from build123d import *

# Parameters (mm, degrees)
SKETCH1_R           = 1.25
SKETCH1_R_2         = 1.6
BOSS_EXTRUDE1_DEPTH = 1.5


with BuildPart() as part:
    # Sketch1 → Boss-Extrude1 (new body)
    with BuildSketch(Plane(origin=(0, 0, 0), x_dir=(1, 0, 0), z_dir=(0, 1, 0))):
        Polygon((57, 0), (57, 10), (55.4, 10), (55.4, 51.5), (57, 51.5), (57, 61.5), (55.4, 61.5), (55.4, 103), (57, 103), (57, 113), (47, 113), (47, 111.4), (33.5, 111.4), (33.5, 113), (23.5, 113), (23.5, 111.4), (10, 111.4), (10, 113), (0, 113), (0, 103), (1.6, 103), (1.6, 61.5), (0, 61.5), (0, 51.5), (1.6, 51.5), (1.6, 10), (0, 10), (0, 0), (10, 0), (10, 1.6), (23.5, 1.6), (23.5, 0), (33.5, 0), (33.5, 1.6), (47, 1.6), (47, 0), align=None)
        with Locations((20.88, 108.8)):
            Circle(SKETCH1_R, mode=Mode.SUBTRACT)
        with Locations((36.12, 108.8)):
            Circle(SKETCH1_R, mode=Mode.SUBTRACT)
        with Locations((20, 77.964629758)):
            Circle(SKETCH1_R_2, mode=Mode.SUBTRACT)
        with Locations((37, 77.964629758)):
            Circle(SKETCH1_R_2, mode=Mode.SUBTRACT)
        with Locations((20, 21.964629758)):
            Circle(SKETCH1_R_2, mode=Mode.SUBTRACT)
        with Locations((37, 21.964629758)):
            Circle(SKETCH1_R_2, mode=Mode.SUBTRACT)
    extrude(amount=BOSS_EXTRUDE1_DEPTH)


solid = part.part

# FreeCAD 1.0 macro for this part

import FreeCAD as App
import Part
import Sketcher

doc = App.newDocument("Part")
body = doc.addObject("PartDesign::Body", "Body")

# Sketch on XZ plane
sketch1 = body.newObject("Sketcher::SketchObject", "Sketch")
sketch1.AttachmentSupport = (doc.getObject("XZ_Plane"), [""])
sketch1.MapMode = "FlatFace"
sketch1.addGeometry([
    Part.LineSegment(App.Vector(57, 0, 0), App.Vector(57, -10, 0)),  # 0
    Part.LineSegment(App.Vector(57, -10, 0), App.Vector(55.4, -10, 0)),  # 1
    Part.LineSegment(App.Vector(55.4, -10, 0), App.Vector(55.4, -51.5, 0)),  # 2
    Part.LineSegment(App.Vector(55.4, -51.5, 0), App.Vector(57, -51.5, 0)),  # 3
    Part.LineSegment(App.Vector(57, -51.5, 0), App.Vector(57, -61.5, 0)),  # 4
    Part.LineSegment(App.Vector(57, -61.5, 0), App.Vector(55.4, -61.5, 0)),  # 5
    Part.LineSegment(App.Vector(55.4, -61.5, 0), App.Vector(55.4, -103, 0)),  # 6
    Part.LineSegment(App.Vector(55.4, -103, 0), App.Vector(57, -103, 0)),  # 7
    Part.LineSegment(App.Vector(57, -103, 0), App.Vector(57, -113, 0)),  # 8
    Part.LineSegment(App.Vector(57, -113, 0), App.Vector(47, -113, 0)),  # 9
    Part.LineSegment(App.Vector(47, -113, 0), App.Vector(47, -111.4, 0)),  # 10
    Part.LineSegment(App.Vector(47, -111.4, 0), App.Vector(33.5, -111.4, 0)),  # 11
    Part.LineSegment(App.Vector(33.5, -111.4, 0), App.Vector(33.5, -113, 0)),  # 12
    Part.LineSegment(App.Vector(33.5, -113, 0), App.Vector(23.5, -113, 0)),  # 13
    Part.LineSegment(App.Vector(23.5, -113, 0), App.Vector(23.5, -111.4, 0)),  # 14
    Part.LineSegment(App.Vector(23.5, -111.4, 0), App.Vector(10, -111.4, 0)),  # 15
    Part.LineSegment(App.Vector(10, -111.4, 0), App.Vector(10, -113, 0)),  # 16
    Part.LineSegment(App.Vector(10, -113, 0), App.Vector(0, -113, 0)),  # 17
    Part.LineSegment(App.Vector(0, -113, 0), App.Vector(0, -103, 0)),  # 18
    Part.LineSegment(App.Vector(0, -103, 0), App.Vector(1.6, -103, 0)),  # 19
    Part.LineSegment(App.Vector(1.6, -103, 0), App.Vector(1.6, -61.5, 0)),  # 20
    Part.LineSegment(App.Vector(1.6, -61.5, 0), App.Vector(0, -61.5, 0)),  # 21
    Part.LineSegment(App.Vector(0, -61.5, 0), App.Vector(0, -51.5, 0)),  # 22
    Part.LineSegment(App.Vector(0, -51.5, 0), App.Vector(1.6, -51.5, 0)),  # 23
    Part.LineSegment(App.Vector(1.6, -51.5, 0), App.Vector(1.6, -10, 0)),  # 24
    Part.LineSegment(App.Vector(1.6, -10, 0), App.Vector(0, -10, 0)),  # 25
    Part.LineSegment(App.Vector(0, -10, 0), App.Vector(0, 0, 0)),  # 26
    Part.LineSegment(App.Vector(0, 0, 0), App.Vector(10, 0, 0)),  # 27
    Part.LineSegment(App.Vector(10, 0, 0), App.Vector(10, -1.6, 0)),  # 28
    Part.LineSegment(App.Vector(10, -1.6, 0), App.Vector(23.5, -1.6, 0)),  # 29
    Part.LineSegment(App.Vector(23.5, -1.6, 0), App.Vector(23.5, 0, 0)),  # 30
    Part.LineSegment(App.Vector(23.5, 0, 0), App.Vector(33.5, 0, 0)),  # 31
    Part.LineSegment(App.Vector(33.5, 0, 0), App.Vector(33.5, -1.6, 0)),  # 32
    Part.LineSegment(App.Vector(33.5, -1.6, 0), App.Vector(47, -1.6, 0)),  # 33
    Part.LineSegment(App.Vector(47, -1.6, 0), App.Vector(47, 0, 0)),  # 34
    Part.LineSegment(App.Vector(47, 0, 0), App.Vector(57, 0, 0)),  # 35
    Part.Circle(App.Vector(20, -22, 0), App.Vector(0, 0, 1), 1.6),  # 36
    Part.Circle(App.Vector(37, -22, 0), App.Vector(0, 0, 1), 1.6),  # 37
    Part.Circle(App.Vector(20, -78, 0), App.Vector(0, 0, 1), 1.6),  # 38
    Part.Circle(App.Vector(20.9, -108.8, 0), App.Vector(0, 0, 1), 1.2),  # 39
    Part.Circle(App.Vector(37, -78, 0), App.Vector(0, 0, 1), 1.6),  # 40
    Part.Circle(App.Vector(36.1, -108.8, 0), App.Vector(0, 0, 1), 1.2),  # 41
], False)
sketch1.addConstraint([
    Sketcher.Constraint("Coincident", 0, 2, 1, 1),
    Sketcher.Constraint("Coincident", 1, 2, 2, 1),
    Sketcher.Constraint("Coincident", 2, 2, 3, 1),
    Sketcher.Constraint("Coincident", 3, 2, 4, 1),
    Sketcher.Constraint("Coincident", 4, 2, 5, 1),
    Sketcher.Constraint("Coincident", 5, 2, 6, 1),
    Sketcher.Constraint("Coincident", 6, 2, 7, 1),
    Sketcher.Constraint("Coincident", 7, 2, 8, 1),
    Sketcher.Constraint("Coincident", 8, 2, 9, 1),
    Sketcher.Constraint("Coincident", 9, 2, 10, 1),
    Sketcher.Constraint("Coincident", 10, 2, 11, 1),
    Sketcher.Constraint("Coincident", 11, 2, 12, 1),
    Sketcher.Constraint("Coincident", 12, 2, 13, 1),
    Sketcher.Constraint("Coincident", 13, 2, 14, 1),
    Sketcher.Constraint("Coincident", 14, 2, 15, 1),
    Sketcher.Constraint("Coincident", 15, 2, 16, 1),
    Sketcher.Constraint("Coincident", 16, 2, 17, 1),
    Sketcher.Constraint("Coincident", 17, 2, 18, 1),
    Sketcher.Constraint("Coincident", 18, 2, 19, 1),
    Sketcher.Constraint("Coincident", 19, 2, 20, 1),
    Sketcher.Constraint("Coincident", 20, 2, 21, 1),
    Sketcher.Constraint("Coincident", 21, 2, 22, 1),
    Sketcher.Constraint("Coincident", 22, 2, 23, 1),
    Sketcher.Constraint("Coincident", 23, 2, 24, 1),
    Sketcher.Constraint("Coincident", 24, 2, 25, 1),
    Sketcher.Constraint("Coincident", 25, 2, 26, 1),
    Sketcher.Constraint("Coincident", 26, 2, 27, 1),
    Sketcher.Constraint("Coincident", 27, 2, 28, 1),
    Sketcher.Constraint("Coincident", 28, 2, 29, 1),
    Sketcher.Constraint("Coincident", 29, 2, 30, 1),
    Sketcher.Constraint("Coincident", 30, 2, 31, 1),
    Sketcher.Constraint("Coincident", 31, 2, 32, 1),
    Sketcher.Constraint("Coincident", 32, 2, 33, 1),
    Sketcher.Constraint("Coincident", 33, 2, 34, 1),
    Sketcher.Constraint("Coincident", 34, 2, 35, 1),
    Sketcher.Constraint("Coincident", 35, 2, 0, 1),
    Sketcher.Constraint("Vertical", 0),
    Sketcher.Constraint("Horizontal", 1),
    Sketcher.Constraint("Vertical", 2),
    Sketcher.Constraint("Horizontal", 3),
    Sketcher.Constraint("Vertical", 4),
    Sketcher.Constraint("Horizontal", 5),
    Sketcher.Constraint("Vertical", 6),
    Sketcher.Constraint("Horizontal", 7),
    Sketcher.Constraint("Vertical", 8),
    Sketcher.Constraint("Horizontal", 9),
    Sketcher.Constraint("Vertical", 10),
    Sketcher.Constraint("Horizontal", 11),
    Sketcher.Constraint("Vertical", 12),
    Sketcher.Constraint("Horizontal", 13),
    Sketcher.Constraint("Vertical", 14),
    Sketcher.Constraint("Horizontal", 15),
    Sketcher.Constraint("Vertical", 16),
    Sketcher.Constraint("Horizontal", 17),
    Sketcher.Constraint("Vertical", 18),
    Sketcher.Constraint("Horizontal", 19),
    Sketcher.Constraint("Vertical", 20),
    Sketcher.Constraint("Horizontal", 21),
    Sketcher.Constraint("Vertical", 22),
    Sketcher.Constraint("Horizontal", 23),
    Sketcher.Constraint("Vertical", 24),
    Sketcher.Constraint("Horizontal", 25),
    Sketcher.Constraint("Vertical", 26),
    Sketcher.Constraint("Horizontal", 27),
    Sketcher.Constraint("Vertical", 28),
    Sketcher.Constraint("Horizontal", 29),
    Sketcher.Constraint("Vertical", 30),
    Sketcher.Constraint("Horizontal", 31),
    Sketcher.Constraint("Vertical", 32),
    Sketcher.Constraint("Horizontal", 33),
    Sketcher.Constraint("Vertical", 34),
    Sketcher.Constraint("Horizontal", 35),
    Sketcher.Constraint("Coincident", 26, 2, -1, 1),
    Sketcher.Constraint("Equal", 36, 37),
    Sketcher.Constraint("Equal", 37, 38),
    Sketcher.Constraint("Equal", 38, 40),
    Sketcher.Constraint("Equal", 39, 41),
    Sketcher.Constraint("PointOnObject", 17, 2, -2),
    Sketcher.Constraint("PointOnObject", 21, 2, -2),
    Sketcher.Constraint("PointOnObject", 30, 2, -1),
    Sketcher.Constraint("PointOnObject", 34, 2, -1),
    Sketcher.Constraint("Horizontal", 36, 3, 37, 3),
    Sketcher.Constraint("Horizontal", 38, 3, 40, 3),
    Sketcher.Constraint("Horizontal", 39, 3, 41, 3),
    Sketcher.Constraint("Horizontal", 9, 2, 12, 2),
    Sketcher.Constraint("Horizontal", 11, 2, 14, 2),
    Sketcher.Constraint("Horizontal", 13, 2, 16, 2),
    Sketcher.Constraint("Horizontal", 7, 2, 18, 2),
    Sketcher.Constraint("Horizontal", 5, 2, 20, 2),
    Sketcher.Constraint("Horizontal", 3, 2, 22, 2),
    Sketcher.Constraint("Horizontal", 1, 2, 24, 2),
    Sketcher.Constraint("Horizontal", 29, 2, 32, 2),
    Sketcher.Constraint("Vertical", 36, 3, 38, 3),
    Sketcher.Constraint("Vertical", 37, 3, 40, 3),
    Sketcher.Constraint("Vertical", 0, 2, 3, 2),
    Sketcher.Constraint("Vertical", 2, 2, 5, 2),
    Sketcher.Constraint("Vertical", 4, 2, 7, 2),
    Sketcher.Constraint("Vertical", 20, 2, 23, 2),
    Sketcher.Constraint("Vertical", 16, 2, 27, 2),
    Sketcher.Constraint("Vertical", 14, 2, 29, 2),
    Sketcher.Constraint("Vertical", 12, 2, 31, 2),
    Sketcher.Constraint("Vertical", 10, 2, 33, 2),
    Sketcher.Constraint("Equal", 9, 13),
    Sketcher.Constraint("Equal", 11, 15),
    Sketcher.Constraint("Equal", 13, 17),
    Sketcher.Constraint("Equal", 7, 19),
    Sketcher.Constraint("Equal", 35, 0),
    Sketcher.Constraint("Equal", 0, 4),
    Sketcher.Constraint("Equal", 2, 6),
    Sketcher.Constraint("Equal", 4, 8),
    Sketcher.Constraint("Equal", 25, 10),
    Sketcher.Constraint("Equal", 16, 28),
    Sketcher.Constraint("Diameter", 36, 3.2),
    Sketcher.Constraint("Diameter", 39, 2.5),
    Sketcher.Constraint("DistanceX", 9, 2, 9, 1, 10.0),
    Sketcher.Constraint("DistanceX", 1, 2, 1, 1, 1.6),
    Sketcher.Constraint("DistanceX", 11, 2, 11, 1, 13.5),
    Sketcher.Constraint("DistanceY", 2, 2, 2, 1, 41.5),
    Sketcher.Constraint("DistanceX", -1, 1, 36, 3, 20.0),
    Sketcher.Constraint("DistanceX", -1, 1, 37, 3, 37.0),
    Sketcher.Constraint("DistanceY", 38, 3, 36, 3, 56.0),
    Sketcher.Constraint("DistanceY", 39, 3, -1, 1, 108.8),
    Sketcher.Constraint("DistanceX", -1, 1, 39, 3, 20.88),
    Sketcher.Constraint("DistanceX", -1, 1, 41, 3, 36.12),
    Sketcher.Constraint("DistanceY", 36, 3, -1, 1, 21.96463),
])
pad1 = body.newObject("PartDesign::Pad", "Pad")
pad1.Profile = sketch1
pad1.Length = 1.5
pad1.Reversed = True

doc.recompute()
